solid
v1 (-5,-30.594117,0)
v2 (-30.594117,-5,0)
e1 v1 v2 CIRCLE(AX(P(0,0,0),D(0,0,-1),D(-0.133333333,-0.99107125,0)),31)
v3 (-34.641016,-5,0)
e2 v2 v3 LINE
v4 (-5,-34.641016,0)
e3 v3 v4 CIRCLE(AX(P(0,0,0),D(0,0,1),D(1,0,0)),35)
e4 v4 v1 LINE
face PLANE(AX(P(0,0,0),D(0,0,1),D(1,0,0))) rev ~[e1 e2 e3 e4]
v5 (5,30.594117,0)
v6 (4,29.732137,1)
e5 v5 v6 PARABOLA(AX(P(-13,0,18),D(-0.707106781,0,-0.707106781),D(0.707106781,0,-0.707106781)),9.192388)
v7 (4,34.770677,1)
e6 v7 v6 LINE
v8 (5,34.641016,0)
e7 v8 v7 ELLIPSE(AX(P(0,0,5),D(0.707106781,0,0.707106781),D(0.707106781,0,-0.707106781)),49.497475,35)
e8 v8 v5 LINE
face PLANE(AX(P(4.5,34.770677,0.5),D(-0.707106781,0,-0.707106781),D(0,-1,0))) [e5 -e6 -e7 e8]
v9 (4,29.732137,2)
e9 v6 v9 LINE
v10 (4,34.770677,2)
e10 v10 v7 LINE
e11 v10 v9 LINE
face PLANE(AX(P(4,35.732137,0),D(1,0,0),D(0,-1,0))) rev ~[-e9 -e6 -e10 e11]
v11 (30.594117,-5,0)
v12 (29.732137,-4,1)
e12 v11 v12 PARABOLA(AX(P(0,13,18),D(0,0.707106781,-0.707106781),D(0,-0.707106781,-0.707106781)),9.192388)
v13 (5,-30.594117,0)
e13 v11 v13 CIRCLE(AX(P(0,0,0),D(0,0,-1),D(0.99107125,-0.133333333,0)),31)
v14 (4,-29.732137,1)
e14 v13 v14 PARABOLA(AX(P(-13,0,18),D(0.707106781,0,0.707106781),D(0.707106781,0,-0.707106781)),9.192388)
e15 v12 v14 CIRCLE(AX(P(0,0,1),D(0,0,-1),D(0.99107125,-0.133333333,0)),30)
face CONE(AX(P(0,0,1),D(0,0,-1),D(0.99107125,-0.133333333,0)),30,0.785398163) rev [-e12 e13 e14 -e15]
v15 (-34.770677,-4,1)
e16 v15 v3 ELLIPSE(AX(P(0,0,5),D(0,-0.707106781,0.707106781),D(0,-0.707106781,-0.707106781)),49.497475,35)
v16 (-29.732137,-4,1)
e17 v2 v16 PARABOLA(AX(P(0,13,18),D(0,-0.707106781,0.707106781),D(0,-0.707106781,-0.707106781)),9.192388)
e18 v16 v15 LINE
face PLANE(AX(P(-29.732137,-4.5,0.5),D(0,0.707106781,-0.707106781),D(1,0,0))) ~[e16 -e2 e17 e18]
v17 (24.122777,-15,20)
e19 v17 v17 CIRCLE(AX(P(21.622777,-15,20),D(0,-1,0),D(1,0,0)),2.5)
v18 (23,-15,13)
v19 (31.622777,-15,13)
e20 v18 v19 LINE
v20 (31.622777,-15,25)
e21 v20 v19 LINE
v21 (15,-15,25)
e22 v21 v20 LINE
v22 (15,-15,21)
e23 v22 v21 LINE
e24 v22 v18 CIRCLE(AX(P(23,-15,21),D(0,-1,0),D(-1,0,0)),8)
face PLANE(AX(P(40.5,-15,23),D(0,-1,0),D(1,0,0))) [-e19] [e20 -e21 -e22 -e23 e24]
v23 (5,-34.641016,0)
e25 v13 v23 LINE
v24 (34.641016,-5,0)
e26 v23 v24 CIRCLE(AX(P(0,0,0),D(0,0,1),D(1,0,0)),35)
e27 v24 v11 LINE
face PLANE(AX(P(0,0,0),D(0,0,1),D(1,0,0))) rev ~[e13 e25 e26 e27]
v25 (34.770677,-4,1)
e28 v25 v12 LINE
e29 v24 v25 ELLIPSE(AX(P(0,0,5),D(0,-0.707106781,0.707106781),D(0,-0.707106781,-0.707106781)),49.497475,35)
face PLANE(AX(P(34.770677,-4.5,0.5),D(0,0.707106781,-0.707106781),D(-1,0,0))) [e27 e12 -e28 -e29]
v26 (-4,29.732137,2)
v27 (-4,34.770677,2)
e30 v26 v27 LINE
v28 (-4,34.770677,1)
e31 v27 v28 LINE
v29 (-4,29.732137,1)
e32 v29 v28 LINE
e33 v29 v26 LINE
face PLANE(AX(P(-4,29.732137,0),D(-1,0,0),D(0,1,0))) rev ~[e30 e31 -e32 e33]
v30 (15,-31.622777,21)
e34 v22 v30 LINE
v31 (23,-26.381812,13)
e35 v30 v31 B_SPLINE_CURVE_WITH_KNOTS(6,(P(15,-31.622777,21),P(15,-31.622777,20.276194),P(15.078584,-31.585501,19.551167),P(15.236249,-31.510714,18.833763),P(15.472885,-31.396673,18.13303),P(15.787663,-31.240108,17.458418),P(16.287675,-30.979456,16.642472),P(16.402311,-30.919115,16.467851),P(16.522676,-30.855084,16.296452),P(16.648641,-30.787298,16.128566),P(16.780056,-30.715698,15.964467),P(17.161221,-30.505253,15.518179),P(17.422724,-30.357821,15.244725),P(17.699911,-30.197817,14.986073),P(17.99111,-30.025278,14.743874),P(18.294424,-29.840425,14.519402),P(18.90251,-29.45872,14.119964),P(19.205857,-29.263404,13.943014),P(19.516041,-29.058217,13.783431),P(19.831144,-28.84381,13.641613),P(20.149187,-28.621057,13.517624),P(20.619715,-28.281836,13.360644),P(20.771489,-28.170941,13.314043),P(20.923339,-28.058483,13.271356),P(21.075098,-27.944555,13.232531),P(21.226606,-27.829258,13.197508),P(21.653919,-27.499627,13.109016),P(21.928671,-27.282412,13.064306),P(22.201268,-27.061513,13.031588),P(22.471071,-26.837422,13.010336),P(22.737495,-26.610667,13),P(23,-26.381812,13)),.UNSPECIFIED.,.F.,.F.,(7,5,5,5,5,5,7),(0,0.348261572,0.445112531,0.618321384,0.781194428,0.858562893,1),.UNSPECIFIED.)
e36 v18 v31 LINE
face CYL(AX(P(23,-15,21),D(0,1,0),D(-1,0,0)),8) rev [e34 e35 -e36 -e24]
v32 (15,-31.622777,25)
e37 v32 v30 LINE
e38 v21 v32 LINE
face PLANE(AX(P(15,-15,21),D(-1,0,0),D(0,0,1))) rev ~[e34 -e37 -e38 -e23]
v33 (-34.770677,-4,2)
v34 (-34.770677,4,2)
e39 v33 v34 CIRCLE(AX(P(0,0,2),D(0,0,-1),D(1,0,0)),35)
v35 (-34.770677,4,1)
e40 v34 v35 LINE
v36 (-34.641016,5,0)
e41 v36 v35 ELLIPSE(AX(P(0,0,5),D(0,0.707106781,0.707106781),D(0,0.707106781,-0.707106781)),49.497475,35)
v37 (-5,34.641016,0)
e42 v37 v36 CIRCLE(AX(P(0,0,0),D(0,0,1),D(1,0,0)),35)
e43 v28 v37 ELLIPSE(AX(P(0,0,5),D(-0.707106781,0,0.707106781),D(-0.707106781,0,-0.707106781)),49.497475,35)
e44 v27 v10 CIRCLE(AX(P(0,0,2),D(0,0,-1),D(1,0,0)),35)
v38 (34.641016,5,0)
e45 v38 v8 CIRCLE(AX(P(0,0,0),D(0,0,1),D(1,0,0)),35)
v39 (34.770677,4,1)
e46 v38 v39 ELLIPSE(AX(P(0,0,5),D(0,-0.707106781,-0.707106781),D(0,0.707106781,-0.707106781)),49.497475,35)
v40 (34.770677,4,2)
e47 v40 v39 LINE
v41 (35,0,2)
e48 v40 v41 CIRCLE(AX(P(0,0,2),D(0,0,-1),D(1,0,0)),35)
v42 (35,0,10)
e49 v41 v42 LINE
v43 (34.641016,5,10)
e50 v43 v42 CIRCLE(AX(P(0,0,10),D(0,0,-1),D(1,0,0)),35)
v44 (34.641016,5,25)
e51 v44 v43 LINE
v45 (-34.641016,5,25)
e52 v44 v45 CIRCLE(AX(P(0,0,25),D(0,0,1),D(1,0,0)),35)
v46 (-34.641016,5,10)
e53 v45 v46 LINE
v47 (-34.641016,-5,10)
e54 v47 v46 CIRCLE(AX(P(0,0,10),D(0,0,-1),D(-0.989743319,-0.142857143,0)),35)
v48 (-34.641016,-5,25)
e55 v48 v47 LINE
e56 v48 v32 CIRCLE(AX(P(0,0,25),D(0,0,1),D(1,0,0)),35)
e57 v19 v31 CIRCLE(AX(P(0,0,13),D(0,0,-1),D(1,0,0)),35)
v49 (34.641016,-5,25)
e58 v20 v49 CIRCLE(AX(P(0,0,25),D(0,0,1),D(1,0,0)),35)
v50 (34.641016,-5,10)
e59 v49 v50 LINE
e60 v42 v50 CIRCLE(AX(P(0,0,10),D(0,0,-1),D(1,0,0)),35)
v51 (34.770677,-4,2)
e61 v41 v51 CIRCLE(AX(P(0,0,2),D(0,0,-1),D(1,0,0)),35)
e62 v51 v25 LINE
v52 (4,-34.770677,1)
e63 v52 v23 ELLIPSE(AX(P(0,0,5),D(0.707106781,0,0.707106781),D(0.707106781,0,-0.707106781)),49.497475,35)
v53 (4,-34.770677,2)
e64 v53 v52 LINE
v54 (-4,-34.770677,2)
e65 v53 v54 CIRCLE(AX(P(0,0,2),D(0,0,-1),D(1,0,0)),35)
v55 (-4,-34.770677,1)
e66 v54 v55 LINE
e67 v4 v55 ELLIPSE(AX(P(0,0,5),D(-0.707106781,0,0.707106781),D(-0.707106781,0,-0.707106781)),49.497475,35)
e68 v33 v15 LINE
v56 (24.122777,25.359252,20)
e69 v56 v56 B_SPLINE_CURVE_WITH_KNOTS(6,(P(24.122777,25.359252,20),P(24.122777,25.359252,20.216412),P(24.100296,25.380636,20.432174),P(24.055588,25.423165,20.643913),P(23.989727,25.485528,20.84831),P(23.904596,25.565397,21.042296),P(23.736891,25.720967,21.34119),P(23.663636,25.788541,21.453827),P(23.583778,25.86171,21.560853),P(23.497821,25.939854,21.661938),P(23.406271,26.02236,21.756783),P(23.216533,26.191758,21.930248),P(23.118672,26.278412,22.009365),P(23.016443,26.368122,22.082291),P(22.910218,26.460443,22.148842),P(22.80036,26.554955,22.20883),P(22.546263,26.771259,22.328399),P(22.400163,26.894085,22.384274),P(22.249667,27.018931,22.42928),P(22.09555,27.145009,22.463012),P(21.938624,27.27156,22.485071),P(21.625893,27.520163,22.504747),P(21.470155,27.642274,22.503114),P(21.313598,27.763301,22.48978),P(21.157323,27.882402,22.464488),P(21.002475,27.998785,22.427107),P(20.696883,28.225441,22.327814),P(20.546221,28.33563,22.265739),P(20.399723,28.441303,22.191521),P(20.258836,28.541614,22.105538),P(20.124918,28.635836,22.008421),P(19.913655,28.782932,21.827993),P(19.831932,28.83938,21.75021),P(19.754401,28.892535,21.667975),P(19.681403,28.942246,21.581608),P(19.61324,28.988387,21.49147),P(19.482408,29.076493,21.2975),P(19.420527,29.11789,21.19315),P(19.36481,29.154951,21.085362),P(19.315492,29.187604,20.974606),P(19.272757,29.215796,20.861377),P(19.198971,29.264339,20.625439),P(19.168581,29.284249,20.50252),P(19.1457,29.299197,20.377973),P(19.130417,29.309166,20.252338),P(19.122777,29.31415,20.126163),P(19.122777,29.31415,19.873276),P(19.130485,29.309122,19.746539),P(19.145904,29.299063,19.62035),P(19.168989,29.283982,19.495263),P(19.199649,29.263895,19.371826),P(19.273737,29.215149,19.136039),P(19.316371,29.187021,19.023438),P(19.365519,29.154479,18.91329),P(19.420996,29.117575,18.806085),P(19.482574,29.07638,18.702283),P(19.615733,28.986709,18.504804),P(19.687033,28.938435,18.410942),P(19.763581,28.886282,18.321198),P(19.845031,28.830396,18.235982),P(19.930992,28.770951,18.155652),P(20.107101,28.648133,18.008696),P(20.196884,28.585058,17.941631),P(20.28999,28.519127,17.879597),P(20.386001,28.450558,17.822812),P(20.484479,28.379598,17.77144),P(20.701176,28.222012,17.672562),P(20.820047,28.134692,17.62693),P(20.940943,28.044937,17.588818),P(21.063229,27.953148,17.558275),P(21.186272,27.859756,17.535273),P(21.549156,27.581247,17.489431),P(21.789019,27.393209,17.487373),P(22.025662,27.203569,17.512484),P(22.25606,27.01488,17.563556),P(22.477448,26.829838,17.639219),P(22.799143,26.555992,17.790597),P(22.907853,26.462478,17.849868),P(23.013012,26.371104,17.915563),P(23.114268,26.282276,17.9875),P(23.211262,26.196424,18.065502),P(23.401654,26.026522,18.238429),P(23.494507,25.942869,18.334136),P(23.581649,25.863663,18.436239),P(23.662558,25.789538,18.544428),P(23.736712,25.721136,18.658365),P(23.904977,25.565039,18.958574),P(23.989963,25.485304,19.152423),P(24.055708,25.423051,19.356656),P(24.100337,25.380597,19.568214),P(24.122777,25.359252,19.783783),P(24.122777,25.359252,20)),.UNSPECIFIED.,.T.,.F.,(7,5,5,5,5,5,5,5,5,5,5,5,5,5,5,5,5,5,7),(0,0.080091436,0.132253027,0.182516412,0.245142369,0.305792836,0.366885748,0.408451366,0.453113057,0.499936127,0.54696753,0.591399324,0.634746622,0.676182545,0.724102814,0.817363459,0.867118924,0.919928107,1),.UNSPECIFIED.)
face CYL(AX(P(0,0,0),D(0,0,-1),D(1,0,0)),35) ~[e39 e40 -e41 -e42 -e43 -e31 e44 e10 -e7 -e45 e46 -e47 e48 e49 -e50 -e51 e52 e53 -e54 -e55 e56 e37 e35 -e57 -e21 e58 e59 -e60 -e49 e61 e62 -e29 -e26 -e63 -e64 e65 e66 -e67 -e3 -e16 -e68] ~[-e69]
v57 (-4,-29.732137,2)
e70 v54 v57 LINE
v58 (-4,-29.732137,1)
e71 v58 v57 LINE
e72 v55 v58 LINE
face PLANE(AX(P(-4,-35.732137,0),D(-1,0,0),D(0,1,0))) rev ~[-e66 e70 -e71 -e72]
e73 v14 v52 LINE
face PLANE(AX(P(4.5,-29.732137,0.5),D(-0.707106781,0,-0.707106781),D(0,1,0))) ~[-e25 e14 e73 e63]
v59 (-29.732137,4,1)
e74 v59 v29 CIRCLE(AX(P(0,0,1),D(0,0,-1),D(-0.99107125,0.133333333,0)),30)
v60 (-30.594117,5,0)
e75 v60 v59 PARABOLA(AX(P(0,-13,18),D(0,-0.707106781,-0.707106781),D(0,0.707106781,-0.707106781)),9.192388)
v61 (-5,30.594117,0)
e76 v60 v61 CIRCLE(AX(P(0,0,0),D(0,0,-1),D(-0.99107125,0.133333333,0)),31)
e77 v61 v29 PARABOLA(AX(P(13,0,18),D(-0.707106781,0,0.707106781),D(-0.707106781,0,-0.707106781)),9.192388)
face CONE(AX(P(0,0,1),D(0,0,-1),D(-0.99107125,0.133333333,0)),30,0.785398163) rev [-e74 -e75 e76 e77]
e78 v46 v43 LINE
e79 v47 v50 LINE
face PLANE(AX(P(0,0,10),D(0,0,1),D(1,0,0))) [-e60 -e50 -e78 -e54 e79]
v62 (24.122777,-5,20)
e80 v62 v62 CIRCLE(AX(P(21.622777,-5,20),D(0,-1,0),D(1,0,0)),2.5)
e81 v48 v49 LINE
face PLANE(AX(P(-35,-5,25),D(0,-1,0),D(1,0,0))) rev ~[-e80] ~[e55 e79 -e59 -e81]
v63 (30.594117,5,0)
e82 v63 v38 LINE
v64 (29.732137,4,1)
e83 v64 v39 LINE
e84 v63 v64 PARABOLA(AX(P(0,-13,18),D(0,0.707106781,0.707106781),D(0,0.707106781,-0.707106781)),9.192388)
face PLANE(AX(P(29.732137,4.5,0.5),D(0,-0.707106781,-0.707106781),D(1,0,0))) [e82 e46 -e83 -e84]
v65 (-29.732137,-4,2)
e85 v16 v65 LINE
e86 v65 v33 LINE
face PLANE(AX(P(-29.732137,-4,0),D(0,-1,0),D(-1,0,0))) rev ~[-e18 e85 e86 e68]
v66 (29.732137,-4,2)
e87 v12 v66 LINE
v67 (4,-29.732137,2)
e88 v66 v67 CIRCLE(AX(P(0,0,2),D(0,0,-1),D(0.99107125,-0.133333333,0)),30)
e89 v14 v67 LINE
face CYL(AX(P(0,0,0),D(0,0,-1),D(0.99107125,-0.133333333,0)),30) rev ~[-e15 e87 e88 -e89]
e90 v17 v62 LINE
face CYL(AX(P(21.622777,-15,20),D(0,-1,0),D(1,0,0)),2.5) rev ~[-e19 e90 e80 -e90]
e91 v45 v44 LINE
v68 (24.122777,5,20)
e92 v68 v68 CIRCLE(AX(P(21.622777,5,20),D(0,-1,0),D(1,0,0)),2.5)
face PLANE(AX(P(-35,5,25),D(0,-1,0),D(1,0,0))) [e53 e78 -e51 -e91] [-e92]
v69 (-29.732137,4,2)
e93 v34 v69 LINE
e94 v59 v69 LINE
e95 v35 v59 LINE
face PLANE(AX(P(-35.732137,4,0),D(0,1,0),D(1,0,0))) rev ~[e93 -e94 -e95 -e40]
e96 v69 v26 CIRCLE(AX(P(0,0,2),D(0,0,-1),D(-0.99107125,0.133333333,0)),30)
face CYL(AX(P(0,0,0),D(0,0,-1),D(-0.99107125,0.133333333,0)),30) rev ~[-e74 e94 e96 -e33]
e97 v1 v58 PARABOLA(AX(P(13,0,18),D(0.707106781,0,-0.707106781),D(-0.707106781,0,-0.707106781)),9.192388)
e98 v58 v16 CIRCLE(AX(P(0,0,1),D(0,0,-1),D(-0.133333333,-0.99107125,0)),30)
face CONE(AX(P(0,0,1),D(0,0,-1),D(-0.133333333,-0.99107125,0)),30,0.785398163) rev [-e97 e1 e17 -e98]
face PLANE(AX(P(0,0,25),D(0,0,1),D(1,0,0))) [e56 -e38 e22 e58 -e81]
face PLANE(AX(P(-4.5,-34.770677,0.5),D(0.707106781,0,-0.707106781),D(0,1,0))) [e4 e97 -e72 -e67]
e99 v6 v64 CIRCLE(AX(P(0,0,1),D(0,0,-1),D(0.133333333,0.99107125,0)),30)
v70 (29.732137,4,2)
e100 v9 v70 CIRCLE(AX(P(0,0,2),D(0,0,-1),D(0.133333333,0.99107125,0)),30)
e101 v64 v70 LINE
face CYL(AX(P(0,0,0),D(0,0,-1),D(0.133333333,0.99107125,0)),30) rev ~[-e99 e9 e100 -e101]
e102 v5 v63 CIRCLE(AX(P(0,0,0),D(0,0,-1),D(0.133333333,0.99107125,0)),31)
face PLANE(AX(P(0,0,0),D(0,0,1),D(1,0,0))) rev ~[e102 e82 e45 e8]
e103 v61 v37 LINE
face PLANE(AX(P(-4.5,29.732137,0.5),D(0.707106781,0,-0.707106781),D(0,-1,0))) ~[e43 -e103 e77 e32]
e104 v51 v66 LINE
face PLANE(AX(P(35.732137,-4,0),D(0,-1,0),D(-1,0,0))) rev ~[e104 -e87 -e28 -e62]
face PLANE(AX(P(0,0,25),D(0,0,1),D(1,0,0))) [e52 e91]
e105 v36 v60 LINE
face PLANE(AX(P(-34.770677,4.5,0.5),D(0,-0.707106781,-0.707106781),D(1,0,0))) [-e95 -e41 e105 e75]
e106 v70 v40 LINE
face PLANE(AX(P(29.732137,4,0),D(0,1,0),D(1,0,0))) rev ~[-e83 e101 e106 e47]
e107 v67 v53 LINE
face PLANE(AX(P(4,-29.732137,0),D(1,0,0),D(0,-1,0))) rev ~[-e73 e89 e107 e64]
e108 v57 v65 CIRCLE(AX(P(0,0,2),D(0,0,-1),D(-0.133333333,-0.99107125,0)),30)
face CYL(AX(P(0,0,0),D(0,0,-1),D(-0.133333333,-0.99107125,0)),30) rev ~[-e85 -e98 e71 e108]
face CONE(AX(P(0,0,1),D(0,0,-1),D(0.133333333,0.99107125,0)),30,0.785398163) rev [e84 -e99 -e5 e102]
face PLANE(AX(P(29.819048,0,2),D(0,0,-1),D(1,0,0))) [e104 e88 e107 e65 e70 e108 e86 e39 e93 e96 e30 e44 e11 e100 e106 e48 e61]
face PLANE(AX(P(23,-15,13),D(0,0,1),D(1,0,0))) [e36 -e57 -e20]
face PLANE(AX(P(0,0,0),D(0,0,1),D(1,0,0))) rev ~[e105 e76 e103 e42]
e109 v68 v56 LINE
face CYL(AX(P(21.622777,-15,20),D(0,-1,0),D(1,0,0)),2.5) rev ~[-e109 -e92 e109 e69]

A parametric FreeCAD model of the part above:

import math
import FreeCAD as App
import Part
import Sketcher
from FreeCAD import Vector
Q = App.Units.Quantity


def edges_at(feature, points):
    """Names of the edges that pass closest to the given points."""
    edges = feature.Shape.Edges
    near = lambda p: min(range(len(edges)), key=lambda i: edges[i].distToShape(Part.Vertex(*p))[0])
    return sorted({f"Edge{near(p) + 1}" for p in points})

doc = App.newDocument("Part")
body = doc.addObject("PartDesign::Body", "Body")

# Sketch on XY plane
sketch1 = body.newObject("Sketcher::SketchObject", "Sketch")
sketch1.AttachmentSupport = (doc.getObject("XY_Plane"), [""])
sketch1.MapMode = "FlatFace"
sketch1.addGeometry(Part.Circle(Vector(0, 0, 0), Vector(0, 0, 1), 35), False)
sketch1.addConstraint([
    Sketcher.Constraint("Coincident", 0, 3, -1, 1),
    Sketcher.Constraint("Diameter", 0, Q("70 mm")),
])
pad1 = body.newObject("PartDesign::Pad", "Pad")
pad1.Profile = sketch1
pad1.Length = 25

# Sketch on XY plane
sketch2 = body.newObject("Sketcher::SketchObject", "Sketch001")
sketch2.AttachmentSupport = (doc.getObject("XY_Plane"), [""])
sketch2.MapMode = "FlatFace"
sketch2.AttachmentOffset = App.Placement(Vector(0, 0, 25), App.Rotation())
sketch2.addGeometry([
    Part.LineSegment(Vector(-35, 5, 0), Vector(-35, -5, 0)),
    Part.LineSegment(Vector(-35, -5, 0), Vector(35, -5, 0)),
    Part.LineSegment(Vector(35, -5, 0), Vector(35, 5, 0)),
    Part.LineSegment(Vector(35, 5, 0), Vector(-35, 5, 0)),
], False)
sketch2.addConstraint([
    Sketcher.Constraint("Coincident", 0, 2, 1, 1),
    Sketcher.Constraint("Coincident", 1, 2, 2, 1),
    Sketcher.Constraint("Coincident", 2, 2, 3, 1),
    Sketcher.Constraint("Coincident", 3, 2, 0, 1),
    Sketcher.Constraint("Vertical", 0),
    Sketcher.Constraint("Horizontal", 1),
    Sketcher.Constraint("Vertical", 2),
    Sketcher.Constraint("Horizontal", 3),
    Sketcher.Constraint("Symmetric", 0, 2, 2, 2, -1, 1),
    Sketcher.Constraint("DistanceX", 1, 1, 1, 2, Q("70 mm")),
    Sketcher.Constraint("DistanceY", 0, 2, 0, 1, Q("10 mm")),
])
pocket1 = body.newObject("PartDesign::Pocket", "Pocket")
pocket1.Profile = sketch2
pocket1.Length = 15

# Sketch on XZ plane
sketch3 = body.newObject("Sketcher::SketchObject", "Sketch002")
sketch3.AttachmentSupport = (doc.getObject("XZ_Plane"), [""])
sketch3.MapMode = "FlatFace"
sketch3.AttachmentOffset = App.Placement(Vector(0, 0, 15), App.Rotation())
sketch3.addGeometry([
    Part.LineSegment(Vector(58, 13, 0), Vector(58, 33, 0)),  # 0
    Part.LineSegment(Vector(58, 33, 0), Vector(15, 33, 0)),  # 1
    Part.LineSegment(Vector(15, 33, 0), Vector(15, 21, 0)),  # 2
    Part.ArcOfCircle(Part.Circle(Vector(23, 21, 0), Vector(0, 0, 1), 8), math.radians(180), math.radians(270)),  # 3
    Part.LineSegment(Vector(23, 13, 0), Vector(58, 13, 0)),  # 4
], False)
sketch3.addConstraint([
    Sketcher.Constraint("Coincident", 0, 2, 1, 1),
    Sketcher.Constraint("Coincident", 1, 2, 2, 1),
    Sketcher.Constraint("Tangent", 2, 2, 3, 1),
    Sketcher.Constraint("Tangent", 3, 2, 4, 1),
    Sketcher.Constraint("Coincident", 4, 2, 0, 1),
    Sketcher.Constraint("Vertical", 0),
    Sketcher.Constraint("Horizontal", 1),
    Sketcher.Constraint("Vertical", 2),
    Sketcher.Constraint("Horizontal", 4),
    Sketcher.Constraint("Radius", 3, Q("8 mm")),
    Sketcher.Constraint("DistanceX", 1, 2, 1, 1, Q("43 mm")),
    Sketcher.Constraint("DistanceY", 0, 1, 0, 2, Q("20 mm")),
    Sketcher.Constraint("DistanceX", -1, 1, 3, 3, Q("23 mm")),
    Sketcher.Constraint("DistanceY", -1, 1, 3, 3, Q("21 mm")),
])
pocket2 = body.newObject("PartDesign::Pocket", "Pocket001")
pocket2.Profile = sketch3
pocket2.Length = 25
pocket2.Reversed = True

# Sketch on XZ plane
sketch4 = body.newObject("Sketcher::SketchObject", "Sketch003")
sketch4.AttachmentSupport = (doc.getObject("XZ_Plane"), [""])
sketch4.MapMode = "FlatFace"
sketch4.AttachmentOffset = App.Placement(Vector(0, 0, 15), App.Rotation())
sketch4.addGeometry(Part.Circle(Vector(21.6, 20, 0), Vector(0, 0, 1), 2.5), False)
sketch4.addConstraint([
    Sketcher.Constraint("Diameter", 0, Q("5 mm")),
    Sketcher.Constraint("DistanceY", -1, 1, 0, 3, Q("20 mm")),
    Sketcher.Constraint("DistanceX", -1, 1, 0, 3, Q("21.622777 mm")),
])
pocket3 = body.newObject("PartDesign::Pocket", "Pocket002")
pocket3.Profile = sketch4
pocket3.Length = 50

# Sketch on XY plane
sketch5 = body.newObject("Sketcher::SketchObject", "Sketch004")
sketch5.AttachmentSupport = (doc.getObject("XY_Plane"), [""])
sketch5.MapMode = "FlatFace"
sketch5.addGeometry([
    Part.LineSegment(Vector(30, 4, 0), Vector(36, 4, 0)),  # 0
    Part.LineSegment(Vector(36, 4, 0), Vector(36, -4, 0)),  # 1
    Part.LineSegment(Vector(36, -4, 0), Vector(30, -4, 0)),  # 2
    Part.ArcOfCircle(Part.Circle(Vector(0, 0, 0), Vector(0, 0, 1), 30), math.radians(-82), math.radians(-8)),  # 3
    Part.LineSegment(Vector(4, -30, 0), Vector(4, -36, 0)),  # 4
    Part.LineSegment(Vector(4, -36, 0), Vector(-4, -36, 0)),  # 5
    Part.LineSegment(Vector(-4, -36, 0), Vector(-4, -30, 0)),  # 6
    Part.ArcOfCircle(Part.Circle(Vector(0, 0, 0), Vector(0, 0, 1), 30), math.radians(-172), math.radians(-98)),  # 7
    Part.LineSegment(Vector(-30, -4, 0), Vector(-36, -4, 0)),  # 8
    Part.LineSegment(Vector(-36, -4, 0), Vector(-36, 4, 0)),  # 9
    Part.LineSegment(Vector(-36, 4, 0), Vector(-30, 4, 0)),  # 10
    Part.ArcOfCircle(Part.Circle(Vector(0, 0, 0), Vector(0, 0, 1), 30), math.radians(98), math.radians(172)),  # 11
    Part.LineSegment(Vector(-4, 30, 0), Vector(-4, 36, 0)),  # 12
    Part.LineSegment(Vector(-4, 36, 0), Vector(4, 36, 0)),  # 13
    Part.LineSegment(Vector(4, 36, 0), Vector(4, 30, 0)),  # 14
    Part.ArcOfCircle(Part.Circle(Vector(0, 0, 0), Vector(0, 0, 1), 30), math.radians(8), math.radians(82)),  # 15
], False)
sketch5.addConstraint([
    Sketcher.Constraint("Coincident", 0, 2, 1, 1),
    Sketcher.Constraint("Coincident", 1, 2, 2, 1),
    Sketcher.Constraint("Coincident", 2, 2, 3, 2),
    Sketcher.Constraint("Coincident", 3, 1, 4, 1),
    Sketcher.Constraint("Coincident", 4, 2, 5, 1),
    Sketcher.Constraint("Coincident", 5, 2, 6, 1),
    Sketcher.Constraint("Coincident", 6, 2, 7, 2),
    Sketcher.Constraint("Coincident", 7, 1, 8, 1),
    Sketcher.Constraint("Coincident", 8, 2, 9, 1),
    Sketcher.Constraint("Coincident", 9, 2, 10, 1),
    Sketcher.Constraint("Coincident", 10, 2, 11, 2),
    Sketcher.Constraint("Coincident", 11, 1, 12, 1),
    Sketcher.Constraint("Coincident", 12, 2, 13, 1),
    Sketcher.Constraint("Coincident", 13, 2, 14, 1),
    Sketcher.Constraint("Coincident", 14, 2, 15, 2),
    Sketcher.Constraint("Coincident", 15, 1, 0, 1),
    Sketcher.Constraint("Horizontal", 0),
    Sketcher.Constraint("Vertical", 1),
    Sketcher.Constraint("Horizontal", 2),
    Sketcher.Constraint("Vertical", 4),
    Sketcher.Constraint("Horizontal", 5),
    Sketcher.Constraint("Vertical", 6),
    Sketcher.Constraint("Horizontal", 8),
    Sketcher.Constraint("Vertical", 9),
    Sketcher.Constraint("Horizontal", 10),
    Sketcher.Constraint("Vertical", 12),
    Sketcher.Constraint("Horizontal", 13),
    Sketcher.Constraint("Vertical", 14),
    Sketcher.Constraint("Coincident", 3, 3, -1, 1),
    Sketcher.Constraint("Coincident", 7, 3, -1, 1),
    Sketcher.Constraint("Coincident", 11, 3, -1, 1),
    Sketcher.Constraint("Coincident", 15, 3, -1, 1),
    Sketcher.Constraint("Equal", 3, 7),
    Sketcher.Constraint("Equal", 7, 11),
    Sketcher.Constraint("Equal", 11, 15),
    Sketcher.Constraint("Symmetric", 0, 2, 8, 2, -1, 1),
    Sketcher.Constraint("Symmetric", 4, 2, 12, 2, -1, 1),
    Sketcher.Constraint("Horizontal", 3, 1, 6, 2),
    Sketcher.Constraint("Horizontal", 2, 2, 7, 1),
    Sketcher.Constraint("Horizontal", 0, 2, 9, 2),
    Sketcher.Constraint("Horizontal", 11, 1, 14, 2),
    Sketcher.Constraint("Equal", 13, 1),
    Sketcher.Constraint("Equal", 10, 4),
    Sketcher.Constraint("Radius", 3, Q("30 mm")),
    Sketcher.Constraint("DistanceX", 0, 1, 0, 2, Q("6 mm")),
    Sketcher.Constraint("DistanceX", 5, 2, 5, 1, Q("8 mm")),
])
pocket4 = body.newObject("PartDesign::Pocket", "Pocket003")
pocket4.Profile = sketch5
pocket4.Length = 2
pocket4.Reversed = True
doc.recompute()

chamfer = body.newObject("PartDesign::Chamfer", "Chamfer")
chamfer.Base = (pocket4, edges_at(pocket4, [
    (21.213, -21.213, 0),
    (-21.213, -21.213, 0),
    (21.213, 21.213, 0),
    (-21.213, 21.213, 0),
    (-32.251, -4, 0),
    (-32.251, 4, 0),
    (-4, -32.251, 0),
    (4, -32.251, 0),
    (32.251, -4, 0),
    (32.251, 4, 0),
    (4, 32.251, 0),
    (-4, 32.251, 0),
]))
chamfer.Size = 1

doc.recompute()
